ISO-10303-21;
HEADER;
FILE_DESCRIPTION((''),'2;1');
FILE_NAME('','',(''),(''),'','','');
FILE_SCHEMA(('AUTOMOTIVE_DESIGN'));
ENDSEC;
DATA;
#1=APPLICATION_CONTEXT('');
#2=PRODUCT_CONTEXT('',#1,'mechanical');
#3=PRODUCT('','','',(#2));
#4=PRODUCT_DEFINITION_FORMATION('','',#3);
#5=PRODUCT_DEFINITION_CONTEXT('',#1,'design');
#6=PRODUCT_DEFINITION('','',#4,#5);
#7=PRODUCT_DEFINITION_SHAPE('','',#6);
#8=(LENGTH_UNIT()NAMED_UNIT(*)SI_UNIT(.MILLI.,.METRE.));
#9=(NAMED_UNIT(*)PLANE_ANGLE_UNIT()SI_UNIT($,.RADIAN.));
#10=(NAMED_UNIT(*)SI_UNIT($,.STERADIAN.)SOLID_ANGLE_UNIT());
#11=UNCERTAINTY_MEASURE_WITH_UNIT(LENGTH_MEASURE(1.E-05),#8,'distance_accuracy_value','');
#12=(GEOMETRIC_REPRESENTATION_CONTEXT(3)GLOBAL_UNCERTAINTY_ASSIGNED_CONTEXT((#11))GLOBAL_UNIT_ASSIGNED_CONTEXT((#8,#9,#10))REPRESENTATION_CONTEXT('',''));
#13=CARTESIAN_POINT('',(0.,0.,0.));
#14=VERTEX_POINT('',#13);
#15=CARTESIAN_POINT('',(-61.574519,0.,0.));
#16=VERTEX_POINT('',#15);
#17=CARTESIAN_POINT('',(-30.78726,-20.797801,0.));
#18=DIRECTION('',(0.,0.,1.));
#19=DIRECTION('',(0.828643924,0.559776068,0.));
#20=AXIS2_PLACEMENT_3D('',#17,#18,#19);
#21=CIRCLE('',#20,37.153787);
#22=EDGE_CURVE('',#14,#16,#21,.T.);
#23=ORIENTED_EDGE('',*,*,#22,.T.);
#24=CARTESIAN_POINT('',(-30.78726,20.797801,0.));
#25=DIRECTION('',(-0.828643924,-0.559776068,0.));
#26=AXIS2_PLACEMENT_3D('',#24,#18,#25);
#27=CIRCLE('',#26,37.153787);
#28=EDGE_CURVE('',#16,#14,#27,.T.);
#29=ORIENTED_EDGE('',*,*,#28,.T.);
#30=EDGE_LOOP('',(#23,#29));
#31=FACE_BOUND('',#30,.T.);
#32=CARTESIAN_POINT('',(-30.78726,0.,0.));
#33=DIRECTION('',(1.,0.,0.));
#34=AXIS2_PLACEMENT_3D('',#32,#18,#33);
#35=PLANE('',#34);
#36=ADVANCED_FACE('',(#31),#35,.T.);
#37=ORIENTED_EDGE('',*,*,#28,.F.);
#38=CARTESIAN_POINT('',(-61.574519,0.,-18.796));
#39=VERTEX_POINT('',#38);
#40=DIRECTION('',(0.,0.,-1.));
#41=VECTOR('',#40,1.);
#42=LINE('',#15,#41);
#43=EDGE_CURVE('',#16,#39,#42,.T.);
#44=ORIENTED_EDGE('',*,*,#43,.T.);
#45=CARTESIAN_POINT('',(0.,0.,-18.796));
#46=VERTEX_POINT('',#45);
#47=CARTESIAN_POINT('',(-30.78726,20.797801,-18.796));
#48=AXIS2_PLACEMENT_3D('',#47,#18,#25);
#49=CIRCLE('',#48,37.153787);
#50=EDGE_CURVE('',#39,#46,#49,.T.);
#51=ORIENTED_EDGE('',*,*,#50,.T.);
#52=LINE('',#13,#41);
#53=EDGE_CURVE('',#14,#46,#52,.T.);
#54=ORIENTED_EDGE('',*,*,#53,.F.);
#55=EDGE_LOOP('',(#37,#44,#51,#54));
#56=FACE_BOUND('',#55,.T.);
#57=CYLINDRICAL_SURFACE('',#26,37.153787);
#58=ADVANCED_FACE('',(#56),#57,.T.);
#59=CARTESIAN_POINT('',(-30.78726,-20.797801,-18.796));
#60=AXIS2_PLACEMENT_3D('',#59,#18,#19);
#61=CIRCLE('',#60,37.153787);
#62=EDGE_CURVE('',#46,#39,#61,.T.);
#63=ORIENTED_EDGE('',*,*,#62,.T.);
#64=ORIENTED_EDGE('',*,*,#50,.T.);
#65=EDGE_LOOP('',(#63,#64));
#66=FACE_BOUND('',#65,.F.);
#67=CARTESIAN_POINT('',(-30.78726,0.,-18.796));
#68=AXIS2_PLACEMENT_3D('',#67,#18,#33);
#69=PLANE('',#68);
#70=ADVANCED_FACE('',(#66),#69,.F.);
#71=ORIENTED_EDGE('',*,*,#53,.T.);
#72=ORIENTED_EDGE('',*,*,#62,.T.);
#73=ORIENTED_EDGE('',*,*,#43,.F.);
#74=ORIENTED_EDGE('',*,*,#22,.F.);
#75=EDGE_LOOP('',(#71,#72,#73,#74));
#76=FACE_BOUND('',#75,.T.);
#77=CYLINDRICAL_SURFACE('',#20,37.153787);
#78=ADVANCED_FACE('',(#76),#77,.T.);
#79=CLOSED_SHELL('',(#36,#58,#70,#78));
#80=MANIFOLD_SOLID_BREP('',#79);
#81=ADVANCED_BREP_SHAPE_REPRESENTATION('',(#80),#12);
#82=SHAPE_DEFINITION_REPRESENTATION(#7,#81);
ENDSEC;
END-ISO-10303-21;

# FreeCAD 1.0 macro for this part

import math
import FreeCAD as App
import Part
import Sketcher

V = App.Vector
Q = App.Units.Quantity

doc = App.newDocument("Part")
body = doc.addObject("PartDesign::Body", "Body")

sketch1 = body.newObject("Sketcher::SketchObject", "Sketch")
sketch1.AttachmentSupport = (doc.getObject("XY_Plane"), [""])
sketch1.MapMode = "FlatFace"
sketch1.addGeometry(Part.ArcOfCircle(Part.Circle(V(-31, 21, 0), V(0, 0, 1), 37), math.radians(-146), math.radians(-34)), False)
sketch1.addGeometry(Part.ArcOfCircle(Part.Circle(V(-31, -21, 0), V(0, 0, 1), 37), math.radians(34), math.radians(146)), False)
sketch1.addConstraint(Sketcher.Constraint("Coincident", 0, 1, 1, 2))
sketch1.addConstraint(Sketcher.Constraint("Coincident", 1, 1, 0, 2))
sketch1.addConstraint(Sketcher.Constraint("Coincident", 1, 1, -1, 1))
sketch1.addConstraint(Sketcher.Constraint("Equal", 0, 1))
sketch1.addConstraint(Sketcher.Constraint("PointOnObject", 0, 1, -1))
sketch1.addConstraint(Sketcher.Constraint("Radius", 0, Q("37.153787 mm")))
sketch1.addConstraint(Sketcher.Constraint("DistanceY", -1, 1, 0, 3, Q("20.797801 mm")))
pad1 = body.newObject("PartDesign::Pad", "Pad")
pad1.Profile = sketch1
pad1.Length = Q("0.74 in")
pad1.Reversed = True

doc.recompute()
